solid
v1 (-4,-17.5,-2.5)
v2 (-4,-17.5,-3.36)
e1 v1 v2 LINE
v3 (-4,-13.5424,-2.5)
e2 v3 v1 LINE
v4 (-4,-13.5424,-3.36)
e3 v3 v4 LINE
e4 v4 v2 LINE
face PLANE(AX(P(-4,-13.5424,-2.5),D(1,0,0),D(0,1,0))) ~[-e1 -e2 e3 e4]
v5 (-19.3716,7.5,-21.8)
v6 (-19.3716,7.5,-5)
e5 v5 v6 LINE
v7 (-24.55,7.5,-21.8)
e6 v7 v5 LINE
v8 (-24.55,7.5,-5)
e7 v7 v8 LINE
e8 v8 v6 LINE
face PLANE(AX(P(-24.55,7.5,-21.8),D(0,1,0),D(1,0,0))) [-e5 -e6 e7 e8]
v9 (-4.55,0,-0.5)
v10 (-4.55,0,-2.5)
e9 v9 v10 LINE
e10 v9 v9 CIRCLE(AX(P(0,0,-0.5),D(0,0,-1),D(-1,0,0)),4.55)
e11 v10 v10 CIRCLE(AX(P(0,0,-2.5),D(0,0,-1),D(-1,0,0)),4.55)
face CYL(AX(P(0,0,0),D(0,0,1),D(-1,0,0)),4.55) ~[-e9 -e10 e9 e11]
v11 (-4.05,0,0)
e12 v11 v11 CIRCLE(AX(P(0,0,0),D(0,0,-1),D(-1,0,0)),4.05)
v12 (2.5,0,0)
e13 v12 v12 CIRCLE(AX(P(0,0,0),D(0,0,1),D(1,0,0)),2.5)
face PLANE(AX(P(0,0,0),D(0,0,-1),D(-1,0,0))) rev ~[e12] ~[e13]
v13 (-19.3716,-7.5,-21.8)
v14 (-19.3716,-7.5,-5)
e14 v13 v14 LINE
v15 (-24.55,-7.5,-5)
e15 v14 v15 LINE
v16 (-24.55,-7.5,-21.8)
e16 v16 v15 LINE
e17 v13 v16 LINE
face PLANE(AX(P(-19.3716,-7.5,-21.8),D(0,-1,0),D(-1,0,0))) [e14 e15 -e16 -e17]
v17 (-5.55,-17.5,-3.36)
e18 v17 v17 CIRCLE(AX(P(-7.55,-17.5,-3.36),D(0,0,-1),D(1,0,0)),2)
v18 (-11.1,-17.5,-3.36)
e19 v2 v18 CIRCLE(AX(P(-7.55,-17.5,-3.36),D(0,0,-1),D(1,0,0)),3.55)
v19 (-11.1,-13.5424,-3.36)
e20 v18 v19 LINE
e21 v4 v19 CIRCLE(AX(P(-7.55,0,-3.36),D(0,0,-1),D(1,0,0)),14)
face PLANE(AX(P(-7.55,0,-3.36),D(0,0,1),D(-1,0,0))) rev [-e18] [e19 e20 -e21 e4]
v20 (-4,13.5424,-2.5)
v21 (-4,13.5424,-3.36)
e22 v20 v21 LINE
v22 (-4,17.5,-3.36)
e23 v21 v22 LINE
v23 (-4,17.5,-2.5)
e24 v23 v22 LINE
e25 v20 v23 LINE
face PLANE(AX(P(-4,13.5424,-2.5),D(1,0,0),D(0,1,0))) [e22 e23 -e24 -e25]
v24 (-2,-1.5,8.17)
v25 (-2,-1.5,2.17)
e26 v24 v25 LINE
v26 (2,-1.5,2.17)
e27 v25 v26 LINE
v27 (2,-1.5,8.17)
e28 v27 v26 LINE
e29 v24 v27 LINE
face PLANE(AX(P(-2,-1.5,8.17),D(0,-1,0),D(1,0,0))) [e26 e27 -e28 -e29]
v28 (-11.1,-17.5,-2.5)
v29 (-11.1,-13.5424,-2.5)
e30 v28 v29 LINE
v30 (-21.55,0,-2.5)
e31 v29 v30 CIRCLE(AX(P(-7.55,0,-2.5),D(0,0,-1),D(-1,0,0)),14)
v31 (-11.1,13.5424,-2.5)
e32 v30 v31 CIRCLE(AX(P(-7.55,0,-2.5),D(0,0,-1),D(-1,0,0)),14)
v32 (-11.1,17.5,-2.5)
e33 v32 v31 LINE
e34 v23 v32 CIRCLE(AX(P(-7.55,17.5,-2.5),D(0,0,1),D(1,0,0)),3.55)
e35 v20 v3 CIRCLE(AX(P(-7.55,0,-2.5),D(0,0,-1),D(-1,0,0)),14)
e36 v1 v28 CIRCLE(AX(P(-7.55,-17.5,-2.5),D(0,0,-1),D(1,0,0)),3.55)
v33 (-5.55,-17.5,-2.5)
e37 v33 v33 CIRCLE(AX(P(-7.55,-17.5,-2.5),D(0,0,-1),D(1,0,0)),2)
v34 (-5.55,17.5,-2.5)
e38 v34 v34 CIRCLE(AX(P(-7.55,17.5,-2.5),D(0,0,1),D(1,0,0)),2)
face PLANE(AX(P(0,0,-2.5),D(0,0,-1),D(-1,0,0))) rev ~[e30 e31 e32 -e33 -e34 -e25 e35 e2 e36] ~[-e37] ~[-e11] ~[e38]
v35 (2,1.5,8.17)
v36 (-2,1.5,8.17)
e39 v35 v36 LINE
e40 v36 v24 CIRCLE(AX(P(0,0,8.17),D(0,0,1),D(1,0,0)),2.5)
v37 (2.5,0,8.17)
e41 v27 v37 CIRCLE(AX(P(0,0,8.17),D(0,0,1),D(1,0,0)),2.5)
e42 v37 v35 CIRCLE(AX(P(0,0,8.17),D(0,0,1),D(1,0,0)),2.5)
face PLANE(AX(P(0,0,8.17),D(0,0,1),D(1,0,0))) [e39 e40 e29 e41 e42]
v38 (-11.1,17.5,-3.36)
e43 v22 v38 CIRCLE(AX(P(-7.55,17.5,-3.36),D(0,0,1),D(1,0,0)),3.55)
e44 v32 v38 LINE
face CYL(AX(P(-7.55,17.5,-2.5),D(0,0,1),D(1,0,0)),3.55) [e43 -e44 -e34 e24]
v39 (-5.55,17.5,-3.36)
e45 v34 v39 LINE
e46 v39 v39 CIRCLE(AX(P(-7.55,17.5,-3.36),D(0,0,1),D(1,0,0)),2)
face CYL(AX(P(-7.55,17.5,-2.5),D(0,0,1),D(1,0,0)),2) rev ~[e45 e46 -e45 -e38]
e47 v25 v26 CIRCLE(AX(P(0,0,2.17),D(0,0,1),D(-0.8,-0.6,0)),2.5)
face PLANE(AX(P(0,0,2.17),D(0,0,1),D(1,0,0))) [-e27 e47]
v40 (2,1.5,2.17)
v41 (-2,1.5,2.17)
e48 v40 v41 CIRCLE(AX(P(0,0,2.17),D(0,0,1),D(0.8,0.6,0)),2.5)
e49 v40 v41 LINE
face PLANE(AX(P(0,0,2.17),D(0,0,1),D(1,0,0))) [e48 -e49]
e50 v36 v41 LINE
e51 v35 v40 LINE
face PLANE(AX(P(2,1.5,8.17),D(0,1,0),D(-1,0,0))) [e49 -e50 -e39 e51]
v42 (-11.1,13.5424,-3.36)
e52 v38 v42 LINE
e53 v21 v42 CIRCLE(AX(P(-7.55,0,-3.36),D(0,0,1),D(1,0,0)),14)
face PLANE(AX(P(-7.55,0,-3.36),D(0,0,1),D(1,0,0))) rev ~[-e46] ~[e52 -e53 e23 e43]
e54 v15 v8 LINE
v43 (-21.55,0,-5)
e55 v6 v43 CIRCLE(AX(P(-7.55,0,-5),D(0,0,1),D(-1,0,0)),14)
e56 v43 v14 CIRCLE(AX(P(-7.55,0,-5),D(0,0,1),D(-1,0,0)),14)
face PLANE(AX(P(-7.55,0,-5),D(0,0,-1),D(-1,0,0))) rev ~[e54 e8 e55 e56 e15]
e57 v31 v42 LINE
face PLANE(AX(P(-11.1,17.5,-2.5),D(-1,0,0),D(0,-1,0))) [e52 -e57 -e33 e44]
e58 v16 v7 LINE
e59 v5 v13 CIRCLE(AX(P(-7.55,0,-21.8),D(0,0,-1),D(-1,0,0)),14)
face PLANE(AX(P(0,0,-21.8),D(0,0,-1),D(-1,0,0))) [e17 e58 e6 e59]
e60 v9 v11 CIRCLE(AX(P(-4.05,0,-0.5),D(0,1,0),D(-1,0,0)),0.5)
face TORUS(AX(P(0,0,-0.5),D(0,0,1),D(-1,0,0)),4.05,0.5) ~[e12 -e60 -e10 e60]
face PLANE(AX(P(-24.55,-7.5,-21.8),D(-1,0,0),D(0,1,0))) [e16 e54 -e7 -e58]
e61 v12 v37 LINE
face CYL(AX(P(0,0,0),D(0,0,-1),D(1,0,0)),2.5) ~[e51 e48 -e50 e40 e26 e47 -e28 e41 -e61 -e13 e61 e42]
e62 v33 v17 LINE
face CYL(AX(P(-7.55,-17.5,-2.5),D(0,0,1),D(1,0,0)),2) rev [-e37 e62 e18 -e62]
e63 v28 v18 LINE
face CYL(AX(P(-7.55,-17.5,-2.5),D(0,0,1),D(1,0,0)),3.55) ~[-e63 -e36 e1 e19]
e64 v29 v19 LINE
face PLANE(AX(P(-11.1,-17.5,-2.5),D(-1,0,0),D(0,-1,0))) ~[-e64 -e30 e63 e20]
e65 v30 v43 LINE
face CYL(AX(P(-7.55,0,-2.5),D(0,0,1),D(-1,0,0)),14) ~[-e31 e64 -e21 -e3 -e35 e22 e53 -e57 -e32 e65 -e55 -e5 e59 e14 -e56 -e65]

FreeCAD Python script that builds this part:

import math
import FreeCAD as App
import Part
import Sketcher

V = App.Vector
Q = App.Units.Quantity


def edges_at(feature, points):
    """Names of the edges that pass closest to the given points."""
    edges = feature.Shape.Edges
    near = lambda p: min(range(len(edges)), key=lambda i: edges[i].distToShape(Part.Vertex(*p))[0])
    return sorted({f"Edge{near(p) + 1}" for p in points})


def add_polygon(sketch, points):
    """Adds a closed chain of lines whose ends are joined by coincident constraints."""
    first, n = sketch.GeometryCount, len(points)
    for a, b in zip(points, points[1:] + points[:1]):
        sketch.addGeometry(Part.LineSegment(App.Vector(*a, 0), App.Vector(*b, 0)), False)
    for i in range(n):
        sketch.addConstraint(Sketcher.Constraint("Coincident", first + i, 2, first + (i + 1) % n, 1))

doc = App.newDocument("Part")
params = doc.addObject("Spreadsheet::Sheet", "Params")
for row, (alias, value) in enumerate([
    ("sketch1_diameter", "5 mm"),
    ("pad1_length", "8.17 mm"),
    ("sketch2_radius", "2.5 mm"),
    ("pocket1_length", "6 mm"),
    ("sketch3_diameter", "9.1 mm"),
    ("pad2_length", "2.5 mm"),
    ("sketch4_diameter", "28 mm"),
    ("pad3_length", "19.3 mm"),
    ("fillet_radius", "0.5 mm"),
    ("sketch5_height", "15 mm"),
    ("pad4_length", "16.8 mm"),
    ("sketch6_diameter", "4 mm"),
    ("sketch6_radius", "3.55 mm"),
    ("sketch6_radius2", "14 mm"),
    ("pad5_length", "0.86 mm"),
], start=1):
    params.set(f"A{row}", alias)
    params.set(f"B{row}", "=" + value)
    params.setAlias(f"B{row}", alias)

body = doc.addObject("PartDesign::Body", "Body")

sketch1 = body.newObject("Sketcher::SketchObject", "Sketch")
sketch1.AttachmentSupport = (doc.getObject("XY_Plane"), [""])
sketch1.MapMode = "FlatFace"
sketch1.addGeometry(Part.Circle(V(0, 0, 0), V(0, 0, 1), 2.5), False)
sketch1.addConstraint(Sketcher.Constraint("Coincident", 0, 3, -1, 1))
sketch1.addConstraint(Sketcher.Constraint("Diameter", 0, Q("5 mm")))
sketch1.setExpression("Constraints[1]", "Params.sketch1_diameter")
pad1 = body.newObject("PartDesign::Pad", "Pad")
pad1.Profile = sketch1
pad1.setExpression("Length", "Params.pad1_length")

sketch2 = body.newObject("Sketcher::SketchObject", "Sketch001")
sketch2.AttachmentSupport = (doc.getObject("XY_Plane"), [""])
sketch2.MapMode = "FlatFace"
sketch2.AttachmentOffset = App.Placement(V(0, 0, 8.17), App.Rotation())
sketch2.addGeometry(Part.LineSegment(V(2, -1.5, 0), V(-2, -1.5, 0)), False)
sketch2.addGeometry(Part.ArcOfCircle(Part.Circle(V(0, 0, 0), V(0, 0, 1), 2.5), math.radians(-143), math.radians(-37)), False)
sketch2.addGeometry(Part.ArcOfCircle(Part.Circle(V(0, 0, 0), V(0, 0, 1), 2.5), math.radians(37), math.radians(143)), False)
sketch2.addGeometry(Part.LineSegment(V(-2, 1.5, 0), V(2, 1.5, 0)), False)
sketch2.addConstraint(Sketcher.Constraint("Coincident", 0, 1, 1, 2))
sketch2.addConstraint(Sketcher.Constraint("Coincident", 1, 1, 0, 2))
sketch2.addConstraint(Sketcher.Constraint("Coincident", 2, 1, 3, 2))
sketch2.addConstraint(Sketcher.Constraint("Coincident", 3, 1, 2, 2))
sketch2.addConstraint(Sketcher.Constraint("Horizontal", 0))
sketch2.addConstraint(Sketcher.Constraint("Horizontal", 3))
sketch2.addConstraint(Sketcher.Constraint("Coincident", 1, 3, -1, 1))
sketch2.addConstraint(Sketcher.Constraint("Coincident", 2, 3, -1, 1))
sketch2.addConstraint(Sketcher.Constraint("Equal", 1, 2))
sketch2.addConstraint(Sketcher.Constraint("Vertical", 0, 1, 2, 1))
sketch2.addConstraint(Sketcher.Constraint("DistanceY", 0, 1, 2, 1, Q("3 mm")))
sketch2.addConstraint(Sketcher.Constraint("Radius", 1, Q("2.5 mm")))
sketch2.setExpression("Constraints[11]", "Params.sketch2_radius")
pocket1 = body.newObject("PartDesign::Pocket", "Pocket")
pocket1.Profile = sketch2
pocket1.setExpression("Length", "Params.pocket1_length")

sketch3 = body.newObject("Sketcher::SketchObject", "Sketch002")
sketch3.AttachmentSupport = (doc.getObject("XY_Plane"), [""])
sketch3.MapMode = "FlatFace"
sketch3.addGeometry(Part.Circle(V(0, 0, 0), V(0, 0, 1), 4.5), False)
sketch3.addConstraint(Sketcher.Constraint("Coincident", 0, 3, -1, 1))
sketch3.addConstraint(Sketcher.Constraint("Diameter", 0, Q("9.1 mm")))
sketch3.setExpression("Constraints[1]", "Params.sketch3_diameter")
pad2 = body.newObject("PartDesign::Pad", "Pad001")
pad2.Profile = sketch3
pad2.setExpression("Length", "Params.pad2_length")
pad2.Reversed = True

sketch4 = body.newObject("Sketcher::SketchObject", "Sketch003")
sketch4.AttachmentSupport = (doc.getObject("XY_Plane"), [""])
sketch4.MapMode = "FlatFace"
sketch4.AttachmentOffset = App.Placement(V(0, 0, -2.5), App.Rotation())
sketch4.addGeometry(Part.Circle(V(-8, 0, 0), V(0, 0, 1), 14), False)
sketch4.addConstraint(Sketcher.Constraint("PointOnObject", 0, 3, -1))
sketch4.addConstraint(Sketcher.Constraint("Diameter", 0, Q("28 mm")))
sketch4.addConstraint(Sketcher.Constraint("DistanceX", 0, 3, -1, 1, Q("7.55 mm")))
sketch4.setExpression("Constraints[1]", "Params.sketch4_diameter")
pad3 = body.newObject("PartDesign::Pad", "Pad002")
pad3.Profile = sketch4
pad3.setExpression("Length", "Params.pad3_length")
pad3.Reversed = True
doc.recompute()

fillet = body.newObject("PartDesign::Fillet", "Fillet")
fillet.Base = (pad3, edges_at(pad3, [(4.55, 0, 0)]))
fillet.setExpression("Radius", "Params.fillet_radius")

sketch5 = body.newObject("Sketcher::SketchObject", "Sketch004")
sketch5.AttachmentSupport = (doc.getObject("XY_Plane"), [""])
sketch5.MapMode = "FlatFace"
sketch5.AttachmentOffset = App.Placement(V(0, 0, -21.8), App.Rotation())
add_polygon(sketch5, [(-19, 8), (-19, -8), (-25, -8), (-25, 8)])
sketch5.addConstraint(Sketcher.Constraint("Vertical", 0))
sketch5.addConstraint(Sketcher.Constraint("Horizontal", 1))
sketch5.addConstraint(Sketcher.Constraint("Vertical", 2))
sketch5.addConstraint(Sketcher.Constraint("Horizontal", 3))
sketch5.addConstraint(Sketcher.Constraint("DistanceY", 0, 2, 0, 1, Q("15 mm")))
sketch5.addConstraint(Sketcher.Constraint("DistanceY", 0, 2, -1, 1, Q("7.5 mm")))
sketch5.addConstraint(Sketcher.Constraint("DistanceX", 1, 2, -1, 1, Q("24.55 mm")))
sketch5.addConstraint(Sketcher.Constraint("DistanceX", 1, 2, 1, 1, Q("5.1784 mm")))
sketch5.setExpression("Constraints[8]", "Params.sketch5_height")
pad4 = body.newObject("PartDesign::Pad", "Pad003")
pad4.Profile = sketch5
pad4.setExpression("Length", "Params.pad4_length")

sketch6 = body.newObject("Sketcher::SketchObject", "Sketch005")
sketch6.AttachmentSupport = (doc.getObject("XY_Plane"), [""])
sketch6.MapMode = "FlatFace"
sketch6.AttachmentOffset = App.Placement(V(0, 0, -2.5), App.Rotation())
sketch6.addGeometry(Part.ArcOfCircle(Part.Circle(V(-7.5, 0, 0), V(0, 0, 1), 14), math.radians(75), math.radians(105)), False)
sketch6.addGeometry(Part.LineSegment(V(-4, 13.5, 0), V(-4, 17.5, 0)), False)
sketch6.addGeometry(Part.ArcOfCircle(Part.Circle(V(-7.5, 17.5, 0), V(0, 0, 1), 3.5), math.radians(0), math.radians(180)), False)
sketch6.addGeometry(Part.LineSegment(V(-11.1, 17.5, 0), V(-11.1, 13.5, 0)), False)
sketch6.addGeometry(Part.Circle(V(-7.5, 17.5, 0), V(0, 0, 1), 2), False)
sketch6.addConstraint(Sketcher.Constraint("Coincident", 0, 1, 1, 1))
sketch6.addConstraint(Sketcher.Constraint("Tangent", 1, 2, 2, 1))
sketch6.addConstraint(Sketcher.Constraint("Tangent", 2, 2, 3, 1))
sketch6.addConstraint(Sketcher.Constraint("Coincident", 3, 2, 0, 2))
sketch6.addConstraint(Sketcher.Constraint("Vertical", 1))
sketch6.addConstraint(Sketcher.Constraint("Vertical", 3))
sketch6.addConstraint(Sketcher.Constraint("Coincident", 4, 3, 2, 3))
sketch6.addConstraint(Sketcher.Constraint("PointOnObject", 0, 3, -1))
sketch6.addConstraint(Sketcher.Constraint("Horizontal", 0, 1, 3, 2))
sketch6.addConstraint(Sketcher.Constraint("Diameter", 4, Q("4 mm")))
sketch6.addConstraint(Sketcher.Constraint("Radius", 2, Q("3.55 mm")))
sketch6.addConstraint(Sketcher.Constraint("DistanceX", 0, 1, -1, 1, Q("4 mm")))
sketch6.addConstraint(Sketcher.Constraint("Radius", 0, Q("14 mm")))
sketch6.addConstraint(Sketcher.Constraint("DistanceY", -1, 1, 2, 3, Q("17.5 mm")))
sketch6.setExpression("Constraints[9]", "Params.sketch6_diameter")
sketch6.setExpression("Constraints[10]", "Params.sketch6_radius")
sketch6.setExpression("Constraints[12]", "Params.sketch6_radius2")
pad5 = body.newObject("PartDesign::Pad", "Pad004")
pad5.Profile = sketch6
pad5.setExpression("Length", "Params.pad5_length")
pad5.Reversed = True
doc.recompute()

mirrored = body.newObject("PartDesign::Mirrored", "Mirrored")
mirrored.Originals = [pad5]
mirrored.MirrorPlane = (doc.getObject("XZ_Plane"), [""])
body.Tip = mirrored

doc.recompute()
